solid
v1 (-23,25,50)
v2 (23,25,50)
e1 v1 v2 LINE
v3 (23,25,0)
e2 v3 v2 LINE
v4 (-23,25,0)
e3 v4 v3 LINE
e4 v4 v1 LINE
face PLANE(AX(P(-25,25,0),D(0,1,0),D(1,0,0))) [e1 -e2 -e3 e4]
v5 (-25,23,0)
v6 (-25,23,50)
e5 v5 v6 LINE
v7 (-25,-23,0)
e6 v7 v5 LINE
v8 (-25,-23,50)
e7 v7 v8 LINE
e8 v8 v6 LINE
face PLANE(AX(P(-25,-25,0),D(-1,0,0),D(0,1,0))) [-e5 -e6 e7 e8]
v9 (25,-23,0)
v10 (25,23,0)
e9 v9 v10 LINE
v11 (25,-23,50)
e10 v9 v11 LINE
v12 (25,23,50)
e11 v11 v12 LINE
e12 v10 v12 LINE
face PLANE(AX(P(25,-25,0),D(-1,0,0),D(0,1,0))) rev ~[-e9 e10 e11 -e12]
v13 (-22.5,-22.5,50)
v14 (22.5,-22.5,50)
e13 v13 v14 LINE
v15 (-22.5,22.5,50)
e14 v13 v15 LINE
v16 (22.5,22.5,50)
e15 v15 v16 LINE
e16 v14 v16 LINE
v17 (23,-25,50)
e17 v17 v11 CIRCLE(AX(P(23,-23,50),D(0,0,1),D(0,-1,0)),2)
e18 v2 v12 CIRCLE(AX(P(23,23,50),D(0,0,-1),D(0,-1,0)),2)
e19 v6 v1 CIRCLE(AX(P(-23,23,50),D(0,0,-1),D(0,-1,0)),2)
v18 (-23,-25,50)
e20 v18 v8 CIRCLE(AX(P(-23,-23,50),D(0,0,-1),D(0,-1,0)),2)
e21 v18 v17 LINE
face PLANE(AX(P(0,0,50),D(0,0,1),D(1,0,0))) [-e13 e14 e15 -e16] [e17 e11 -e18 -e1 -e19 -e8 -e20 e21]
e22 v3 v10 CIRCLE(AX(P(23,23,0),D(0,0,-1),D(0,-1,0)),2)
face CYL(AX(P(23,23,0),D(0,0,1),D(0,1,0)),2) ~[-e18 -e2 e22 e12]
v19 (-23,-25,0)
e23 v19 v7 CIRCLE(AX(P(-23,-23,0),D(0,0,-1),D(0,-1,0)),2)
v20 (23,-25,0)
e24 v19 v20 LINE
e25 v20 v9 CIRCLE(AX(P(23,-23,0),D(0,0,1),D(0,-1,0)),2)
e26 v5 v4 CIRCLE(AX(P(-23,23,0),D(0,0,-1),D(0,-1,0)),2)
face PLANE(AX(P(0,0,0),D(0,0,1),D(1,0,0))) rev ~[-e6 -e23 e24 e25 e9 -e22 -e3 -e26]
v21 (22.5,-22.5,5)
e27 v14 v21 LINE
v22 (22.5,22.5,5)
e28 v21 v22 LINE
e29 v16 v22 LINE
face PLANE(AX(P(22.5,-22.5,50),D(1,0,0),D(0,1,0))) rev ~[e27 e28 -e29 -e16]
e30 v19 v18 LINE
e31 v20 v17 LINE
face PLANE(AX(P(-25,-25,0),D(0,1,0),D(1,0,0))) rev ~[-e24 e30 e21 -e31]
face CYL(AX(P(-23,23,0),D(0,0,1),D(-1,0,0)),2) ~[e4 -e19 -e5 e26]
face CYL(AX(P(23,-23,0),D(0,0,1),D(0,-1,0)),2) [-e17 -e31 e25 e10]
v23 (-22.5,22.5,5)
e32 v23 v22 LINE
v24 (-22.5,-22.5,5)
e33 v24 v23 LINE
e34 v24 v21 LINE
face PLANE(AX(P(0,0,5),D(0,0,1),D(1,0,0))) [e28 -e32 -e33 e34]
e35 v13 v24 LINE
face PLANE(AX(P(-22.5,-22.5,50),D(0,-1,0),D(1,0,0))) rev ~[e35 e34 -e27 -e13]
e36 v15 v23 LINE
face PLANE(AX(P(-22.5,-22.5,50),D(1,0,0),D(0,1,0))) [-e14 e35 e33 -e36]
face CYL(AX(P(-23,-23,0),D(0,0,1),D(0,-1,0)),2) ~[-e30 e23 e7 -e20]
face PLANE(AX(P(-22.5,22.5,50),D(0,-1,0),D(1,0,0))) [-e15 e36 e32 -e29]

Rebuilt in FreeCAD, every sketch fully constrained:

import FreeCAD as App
import Part
import Sketcher
from FreeCAD import Vector
Q = App.Units.Quantity


def edges_at(feature, points):
    """Names of the edges that pass closest to the given points."""
    edges = feature.Shape.Edges
    near = lambda p: min(range(len(edges)), key=lambda i: edges[i].distToShape(Part.Vertex(*p))[0])
    return sorted({f"Edge{near(p) + 1}" for p in points})


def add_polygon(sketch, points):
    """Adds a closed chain of lines whose ends are joined by coincident constraints."""
    first, n = sketch.GeometryCount, len(points)
    for a, b in zip(points, points[1:] + points[:1]):
        sketch.addGeometry(Part.LineSegment(App.Vector(*a, 0), App.Vector(*b, 0)), False)
    for i in range(n):
        sketch.addConstraint(Sketcher.Constraint("Coincident", first + i, 2, first + (i + 1) % n, 1))

doc = App.newDocument("Part")
body = doc.addObject("PartDesign::Body", "Body")

sketch1 = body.newObject("Sketcher::SketchObject", "Sketch")
sketch1.AttachmentSupport = (doc.getObject("XY_Plane"), [""])
sketch1.MapMode = "FlatFace"
add_polygon(sketch1, [(-25, 25), (-25, -25), (25, -25), (25, 25)])
sketch1.addConstraint([
    Sketcher.Constraint("Vertical", 0),
    Sketcher.Constraint("Horizontal", 1),
    Sketcher.Constraint("Vertical", 2),
    Sketcher.Constraint("Horizontal", 3),
    Sketcher.Constraint("Symmetric", 0, 2, 2, 2, -1, 1),
    Sketcher.Constraint("Equal", 3, 0),
    Sketcher.Constraint("DistanceX", 1, 1, 1, 2, Q("50 mm")),
])
pad1 = body.newObject("PartDesign::Pad", "Pad")
pad1.Profile = sketch1
pad1.Length = 50

sketch2 = body.newObject("Sketcher::SketchObject", "Sketch001")
sketch2.AttachmentSupport = (doc.getObject("XY_Plane"), [""])
sketch2.MapMode = "FlatFace"
sketch2.AttachmentOffset = App.Placement(Vector(0, 0, 50), App.Rotation())
add_polygon(sketch2, [(-22.5, 22.5), (-22.5, -22.5), (22.5, -22.5), (22.5, 22.5)])
sketch2.addConstraint([
    Sketcher.Constraint("Vertical", 0),
    Sketcher.Constraint("Horizontal", 1),
    Sketcher.Constraint("Vertical", 2),
    Sketcher.Constraint("Horizontal", 3),
    Sketcher.Constraint("Symmetric", 0, 2, 2, 2, -1, 1),
    Sketcher.Constraint("Equal", 3, 0),
    Sketcher.Constraint("DistanceX", 1, 1, 1, 2, Q("45 mm")),
])
pocket1 = body.newObject("PartDesign::Pocket", "Pocket")
pocket1.Profile = sketch2
pocket1.Length = 45
doc.recompute()

fillet = body.newObject("PartDesign::Fillet", "Fillet")
fillet.Base = (pocket1, edges_at(pocket1, [(25, -25, 25)]))
fillet.Radius = 2
doc.recompute()

fillet2 = body.newObject("PartDesign::Fillet", "Fillet001")
fillet2.Base = (fillet, edges_at(fillet, [(-25, -25, 25)]))
fillet2.Radius = 2
doc.recompute()

fillet3 = body.newObject("PartDesign::Fillet", "Fillet002")
fillet3.Base = (fillet2, edges_at(fillet2, [(-25, 25, 25)]))
fillet3.Radius = 2
doc.recompute()

fillet4 = body.newObject("PartDesign::Fillet", "Fillet003")
fillet4.Base = (fillet3, edges_at(fillet3, [(25, 25, 25)]))
fillet4.Radius = 2

doc.recompute()
